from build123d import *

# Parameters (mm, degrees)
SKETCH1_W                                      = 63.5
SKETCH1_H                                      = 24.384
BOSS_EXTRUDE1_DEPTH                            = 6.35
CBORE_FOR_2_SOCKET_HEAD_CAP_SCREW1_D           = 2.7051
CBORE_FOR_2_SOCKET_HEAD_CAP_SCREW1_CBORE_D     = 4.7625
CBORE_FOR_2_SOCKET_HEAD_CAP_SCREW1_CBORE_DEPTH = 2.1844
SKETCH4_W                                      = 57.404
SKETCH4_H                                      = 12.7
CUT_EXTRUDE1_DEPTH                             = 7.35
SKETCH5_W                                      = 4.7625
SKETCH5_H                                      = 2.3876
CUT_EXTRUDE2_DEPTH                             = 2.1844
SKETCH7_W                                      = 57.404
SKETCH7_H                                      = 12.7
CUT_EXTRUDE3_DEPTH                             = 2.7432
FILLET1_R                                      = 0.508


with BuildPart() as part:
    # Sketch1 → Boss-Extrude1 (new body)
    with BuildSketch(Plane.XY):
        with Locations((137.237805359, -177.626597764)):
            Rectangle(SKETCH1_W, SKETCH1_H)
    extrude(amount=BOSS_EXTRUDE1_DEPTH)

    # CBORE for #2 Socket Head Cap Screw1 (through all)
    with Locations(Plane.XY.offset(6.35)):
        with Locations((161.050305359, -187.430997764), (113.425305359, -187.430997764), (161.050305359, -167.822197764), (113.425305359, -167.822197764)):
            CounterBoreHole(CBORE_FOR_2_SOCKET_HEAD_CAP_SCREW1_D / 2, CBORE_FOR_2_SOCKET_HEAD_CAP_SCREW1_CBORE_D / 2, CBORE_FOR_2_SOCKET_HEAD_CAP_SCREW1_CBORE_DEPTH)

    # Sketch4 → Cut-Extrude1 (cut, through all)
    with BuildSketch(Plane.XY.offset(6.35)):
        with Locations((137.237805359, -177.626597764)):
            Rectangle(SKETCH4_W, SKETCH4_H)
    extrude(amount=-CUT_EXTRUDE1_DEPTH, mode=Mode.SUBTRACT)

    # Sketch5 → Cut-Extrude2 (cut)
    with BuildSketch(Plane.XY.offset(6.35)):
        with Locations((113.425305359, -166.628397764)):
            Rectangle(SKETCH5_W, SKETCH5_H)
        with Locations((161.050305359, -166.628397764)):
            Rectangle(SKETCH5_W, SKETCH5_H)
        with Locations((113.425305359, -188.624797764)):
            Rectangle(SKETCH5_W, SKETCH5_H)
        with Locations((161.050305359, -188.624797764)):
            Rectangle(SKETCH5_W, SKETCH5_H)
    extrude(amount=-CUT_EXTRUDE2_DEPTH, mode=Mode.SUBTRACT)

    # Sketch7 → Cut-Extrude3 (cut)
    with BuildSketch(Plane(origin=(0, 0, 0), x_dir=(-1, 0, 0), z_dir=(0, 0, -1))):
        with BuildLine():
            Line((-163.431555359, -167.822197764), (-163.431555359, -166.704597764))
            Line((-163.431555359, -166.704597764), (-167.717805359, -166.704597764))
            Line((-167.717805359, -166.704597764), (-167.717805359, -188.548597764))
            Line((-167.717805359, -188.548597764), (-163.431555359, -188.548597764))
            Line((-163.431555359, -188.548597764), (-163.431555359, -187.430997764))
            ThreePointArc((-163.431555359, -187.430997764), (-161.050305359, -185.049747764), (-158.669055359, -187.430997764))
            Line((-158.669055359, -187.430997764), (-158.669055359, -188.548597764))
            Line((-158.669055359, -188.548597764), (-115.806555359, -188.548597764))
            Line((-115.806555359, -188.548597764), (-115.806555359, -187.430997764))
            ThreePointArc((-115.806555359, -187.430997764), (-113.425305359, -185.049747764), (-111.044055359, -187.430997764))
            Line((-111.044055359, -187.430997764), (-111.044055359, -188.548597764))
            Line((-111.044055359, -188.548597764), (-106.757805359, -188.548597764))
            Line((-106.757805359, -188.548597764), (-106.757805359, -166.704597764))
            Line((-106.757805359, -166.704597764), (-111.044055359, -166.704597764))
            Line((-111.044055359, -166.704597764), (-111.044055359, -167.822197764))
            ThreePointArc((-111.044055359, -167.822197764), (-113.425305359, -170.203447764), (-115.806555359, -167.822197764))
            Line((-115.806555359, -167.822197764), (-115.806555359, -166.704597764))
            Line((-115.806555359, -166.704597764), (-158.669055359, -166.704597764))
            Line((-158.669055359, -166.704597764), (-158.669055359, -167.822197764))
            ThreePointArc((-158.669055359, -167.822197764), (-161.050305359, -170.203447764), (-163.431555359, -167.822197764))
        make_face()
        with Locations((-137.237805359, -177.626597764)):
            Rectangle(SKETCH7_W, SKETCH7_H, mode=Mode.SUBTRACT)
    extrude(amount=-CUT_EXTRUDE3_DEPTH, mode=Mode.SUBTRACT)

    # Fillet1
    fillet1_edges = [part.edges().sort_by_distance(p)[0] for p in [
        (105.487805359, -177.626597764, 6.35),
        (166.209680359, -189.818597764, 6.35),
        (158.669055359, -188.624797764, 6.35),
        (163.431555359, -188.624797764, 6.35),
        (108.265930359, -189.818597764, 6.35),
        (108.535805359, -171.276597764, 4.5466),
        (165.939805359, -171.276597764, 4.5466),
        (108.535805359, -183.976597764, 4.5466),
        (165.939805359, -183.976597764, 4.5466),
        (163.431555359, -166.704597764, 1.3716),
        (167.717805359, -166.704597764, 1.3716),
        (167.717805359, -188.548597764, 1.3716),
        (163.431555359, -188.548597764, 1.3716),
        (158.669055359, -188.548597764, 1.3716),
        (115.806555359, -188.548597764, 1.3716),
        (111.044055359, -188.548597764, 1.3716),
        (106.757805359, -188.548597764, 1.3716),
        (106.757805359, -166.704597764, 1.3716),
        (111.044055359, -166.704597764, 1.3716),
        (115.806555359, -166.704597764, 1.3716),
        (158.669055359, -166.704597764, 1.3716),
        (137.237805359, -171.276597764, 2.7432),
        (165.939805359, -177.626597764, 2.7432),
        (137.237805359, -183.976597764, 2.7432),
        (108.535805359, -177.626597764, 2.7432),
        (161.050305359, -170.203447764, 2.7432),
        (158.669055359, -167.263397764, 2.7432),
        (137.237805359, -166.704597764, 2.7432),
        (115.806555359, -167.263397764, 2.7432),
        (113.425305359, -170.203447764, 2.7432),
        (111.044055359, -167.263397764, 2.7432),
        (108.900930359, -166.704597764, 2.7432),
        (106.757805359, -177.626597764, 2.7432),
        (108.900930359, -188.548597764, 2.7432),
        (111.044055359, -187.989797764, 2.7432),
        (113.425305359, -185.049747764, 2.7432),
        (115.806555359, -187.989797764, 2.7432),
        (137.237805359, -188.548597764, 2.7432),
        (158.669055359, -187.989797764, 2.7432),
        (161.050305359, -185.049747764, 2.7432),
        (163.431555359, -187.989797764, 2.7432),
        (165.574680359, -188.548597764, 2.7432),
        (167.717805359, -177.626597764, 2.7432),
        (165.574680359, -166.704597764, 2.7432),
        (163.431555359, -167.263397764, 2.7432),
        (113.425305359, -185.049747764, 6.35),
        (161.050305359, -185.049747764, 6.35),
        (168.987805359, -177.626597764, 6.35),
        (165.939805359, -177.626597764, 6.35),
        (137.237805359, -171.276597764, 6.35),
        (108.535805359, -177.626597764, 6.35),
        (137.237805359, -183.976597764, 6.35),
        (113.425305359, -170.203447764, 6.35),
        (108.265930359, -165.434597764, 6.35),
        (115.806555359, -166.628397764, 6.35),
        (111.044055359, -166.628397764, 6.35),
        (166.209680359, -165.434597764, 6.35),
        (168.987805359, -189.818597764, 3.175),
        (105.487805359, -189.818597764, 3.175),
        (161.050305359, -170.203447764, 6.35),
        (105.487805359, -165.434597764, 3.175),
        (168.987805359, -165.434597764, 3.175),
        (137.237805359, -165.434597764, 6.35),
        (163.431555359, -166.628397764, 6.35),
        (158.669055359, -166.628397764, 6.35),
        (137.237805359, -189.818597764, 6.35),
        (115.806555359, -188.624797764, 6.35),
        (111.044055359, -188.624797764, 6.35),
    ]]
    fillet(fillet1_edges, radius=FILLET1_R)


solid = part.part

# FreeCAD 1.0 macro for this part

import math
import FreeCAD as App
import Part
import Sketcher

V = App.Vector
Q = App.Units.Quantity


def edges_at(feature, points):
    """Names of the edges that pass closest to the given points."""
    edges = feature.Shape.Edges
    near = lambda p: min(range(len(edges)), key=lambda i: edges[i].distToShape(Part.Vertex(*p))[0])
    return sorted({f"Edge{near(p) + 1}" for p in points})


def add_polygon(sketch, points):
    """Adds a closed chain of lines whose ends are joined by coincident constraints."""
    first, n = sketch.GeometryCount, len(points)
    for a, b in zip(points, points[1:] + points[:1]):
        sketch.addGeometry(Part.LineSegment(App.Vector(*a, 0), App.Vector(*b, 0)), False)
    for i in range(n):
        sketch.addConstraint(Sketcher.Constraint("Coincident", first + i, 2, first + (i + 1) % n, 1))

doc = App.newDocument("Part")
body = doc.addObject("PartDesign::Body", "Body")

sketch1 = body.newObject("Sketcher::SketchObject", "Sketch")
sketch1.AttachmentSupport = (doc.getObject("XY_Plane"), [""])
sketch1.MapMode = "FlatFace"
add_polygon(sketch1, [(105, -165), (105, -190), (169, -190), (169, -165)])
sketch1.addConstraint([
    Sketcher.Constraint("Vertical", 0),
    Sketcher.Constraint("Horizontal", 1),
    Sketcher.Constraint("Vertical", 2),
    Sketcher.Constraint("Horizontal", 3),
    Sketcher.Constraint("DistanceX", 1, 1, 1, 2, Q("2.5 in")),
    Sketcher.Constraint("DistanceY", 0, 2, 0, 1, Q("0.96 in")),
    Sketcher.Constraint("DistanceX", -1, 1, 0, 2, Q("105.487805 mm")),
    Sketcher.Constraint("DistanceY", 0, 2, -1, 1, Q("189.818598 mm")),
])
pad1 = body.newObject("PartDesign::Pad", "Pad")
pad1.Profile = sketch1
pad1.Length = Q("0.25 in")

sketch2 = body.newObject("Sketcher::SketchObject", "Sketch001")
sketch2.AttachmentSupport = (doc.getObject("XY_Plane"), [""])
sketch2.MapMode = "FlatFace"
sketch2.AttachmentOffset = App.Placement(V(0, 0, 0.25 * 25.4), App.Rotation())
sketch2.addGeometry([
    Part.Circle(V(161.1, -187.4, 0), V(0, 0, 1), 1.4),
    Part.Circle(V(113.4, -187.4, 0), V(0, 0, 1), 1.4),
    Part.Circle(V(161.1, -167.8, 0), V(0, 0, 1), 1.4),
    Part.Circle(V(113.4, -167.8, 0), V(0, 0, 1), 1.4),
], False)
sketch2.addConstraint([
    Sketcher.Constraint("Equal", 0, 1),
    Sketcher.Constraint("Equal", 1, 2),
    Sketcher.Constraint("Equal", 2, 3),
    Sketcher.Constraint("Horizontal", 0, 3, 1, 3),
    Sketcher.Constraint("Horizontal", 2, 3, 3, 3),
    Sketcher.Constraint("Vertical", 0, 3, 2, 3),
    Sketcher.Constraint("Vertical", 1, 3, 3, 3),
    Sketcher.Constraint("Diameter", 0, Q("0.1065 in")),
    Sketcher.Constraint("DistanceX", 1, 3, 0, 3, Q("1.875 in")),
    Sketcher.Constraint("DistanceY", 0, 3, 2, 3, Q("0.772 in")),
    Sketcher.Constraint("DistanceX", -1, 1, 0, 3, Q("161.050305 mm")),
    Sketcher.Constraint("DistanceY", 0, 3, -1, 1, Q("187.430998 mm")),
])
doc.recompute()
hole = body.newObject("PartDesign::Hole", "Hole")
hole.Profile = sketch2
hole.ThreadType = "None"
hole.Diameter = Q("0.1065 in")
hole.DepthType = "ThroughAll"
hole.HoleCutType = "Counterbore"
hole.HoleCutDiameter = Q("0.1875 in")
hole.HoleCutDepth = Q("0.086 in")

sketch3 = body.newObject("Sketcher::SketchObject", "Sketch002")
sketch3.AttachmentSupport = (doc.getObject("XY_Plane"), [""])
sketch3.MapMode = "FlatFace"
sketch3.AttachmentOffset = App.Placement(V(0, 0, 0.25 * 25.4), App.Rotation())
add_polygon(sketch3, [(109, -171), (109, -184), (166, -184), (166, -171)])
sketch3.addConstraint([
    Sketcher.Constraint("Vertical", 0),
    Sketcher.Constraint("Horizontal", 1),
    Sketcher.Constraint("Vertical", 2),
    Sketcher.Constraint("Horizontal", 3),
    Sketcher.Constraint("DistanceY", 0, 2, 0, 1, Q("0.5 in")),
    Sketcher.Constraint("DistanceX", 1, 1, 1, 2, Q("2.26 in")),
    Sketcher.Constraint("DistanceX", -1, 1, 0, 2, Q("108.535805 mm")),
    Sketcher.Constraint("DistanceY", 0, 2, -1, 1, Q("183.976598 mm")),
])
pocket1 = body.newObject("PartDesign::Pocket", "Pocket")
pocket1.Profile = sketch3
pocket1.Type = "ThroughAll"

sketch4 = body.newObject("Sketcher::SketchObject", "Sketch003")
sketch4.AttachmentSupport = (doc.getObject("XY_Plane"), [""])
sketch4.MapMode = "FlatFace"
sketch4.AttachmentOffset = App.Placement(V(0, 0, 0.25 * 25.4), App.Rotation())
add_polygon(sketch4, [(111, -165.4), (111, -167.8), (115.8, -167.8), (115.8, -165.4)])
add_polygon(sketch4, [(158.7, -165.4), (158.7, -167.8), (163.4, -167.8), (163.4, -165.4)])
add_polygon(sketch4, [(111, -187.4), (111, -189.8), (115.8, -189.8), (115.8, -187.4)])
add_polygon(sketch4, [(158.7, -187.4), (158.7, -189.8), (163.4, -189.8), (163.4, -187.4)])
sketch4.addConstraint([
    Sketcher.Constraint("Vertical", 0),
    Sketcher.Constraint("Horizontal", 1),
    Sketcher.Constraint("Vertical", 2),
    Sketcher.Constraint("Horizontal", 3),
    Sketcher.Constraint("Vertical", 4),
    Sketcher.Constraint("Horizontal", 5),
    Sketcher.Constraint("Vertical", 6),
    Sketcher.Constraint("Horizontal", 7),
    Sketcher.Constraint("Vertical", 8),
    Sketcher.Constraint("Horizontal", 9),
    Sketcher.Constraint("Vertical", 10),
    Sketcher.Constraint("Horizontal", 11),
    Sketcher.Constraint("Vertical", 12),
    Sketcher.Constraint("Horizontal", 13),
    Sketcher.Constraint("Vertical", 14),
    Sketcher.Constraint("Horizontal", 15),
    Sketcher.Constraint("Horizontal", 1, 2, 4, 2),
    Sketcher.Constraint("Horizontal", 3, 2, 6, 2),
    Sketcher.Constraint("Horizontal", 9, 2, 12, 2),
    Sketcher.Constraint("Horizontal", 11, 2, 14, 2),
    Sketcher.Constraint("Vertical", 3, 2, 8, 2),
    Sketcher.Constraint("Vertical", 2, 2, 9, 2),
    Sketcher.Constraint("Vertical", 7, 2, 12, 2),
    Sketcher.Constraint("Vertical", 6, 2, 13, 2),
    Sketcher.Constraint("Equal", 3, 5),
    Sketcher.Constraint("Equal", 6, 8),
    Sketcher.Constraint("DistanceX", 1, 1, 1, 2, Q("0.1875 in")),
    Sketcher.Constraint("DistanceY", 0, 2, 0, 1, Q("0.094 in")),
    Sketcher.Constraint("DistanceY", 8, 2, 3, 2, Q("0.96 in")),
    Sketcher.Constraint("DistanceX", 1, 2, 4, 2, Q("1.6875 in")),
    Sketcher.Constraint("DistanceX", -1, 1, 0, 2, Q("111.044055 mm")),
    Sketcher.Constraint("DistanceY", 0, 2, -1, 1, Q("167.822198 mm")),
])
pocket2 = body.newObject("PartDesign::Pocket", "Pocket001")
pocket2.Profile = sketch4
pocket2.Length = Q("0.086 in")

sketch5 = body.newObject("Sketcher::SketchObject", "Sketch004")
sketch5.AttachmentSupport = (doc.getObject("XY_Plane"), [""])
sketch5.MapMode = "FlatFace"
sketch5.addGeometry(Part.LineSegment(V(163.4, -167.8, 0), V(163.4, -166.7, 0)), False)
sketch5.addGeometry(Part.LineSegment(V(163.4, -166.7, 0), V(167.7, -166.7, 0)), False)
sketch5.addGeometry(Part.LineSegment(V(167.7, -166.7, 0), V(167.7, -188.5, 0)), False)
sketch5.addGeometry(Part.LineSegment(V(167.7, -188.5, 0), V(163.4, -188.5, 0)), False)
sketch5.addGeometry(Part.LineSegment(V(163.4, -188.5, 0), V(163.4, -187.4, 0)), False)
sketch5.addGeometry(Part.ArcOfCircle(Part.Circle(V(161.1, -187.4, 0), V(0, 0, 1), 2.4), math.radians(0), math.radians(180)), False)
sketch5.addGeometry(Part.LineSegment(V(158.7, -187.4, 0), V(158.7, -188.5, 0)), False)
sketch5.addGeometry(Part.LineSegment(V(158.7, -188.5, 0), V(115.8, -188.5, 0)), False)
sketch5.addGeometry(Part.LineSegment(V(115.8, -188.5, 0), V(115.8, -187.4, 0)), False)
sketch5.addGeometry(Part.ArcOfCircle(Part.Circle(V(113.4, -187.4, 0), V(0, 0, 1), 2.4), math.radians(0), math.radians(180)), False)
sketch5.addGeometry(Part.LineSegment(V(111, -187.4, 0), V(111, -188.5, 0)), False)
sketch5.addGeometry(Part.LineSegment(V(111, -188.5, 0), V(106.8, -188.5, 0)), False)
sketch5.addGeometry(Part.LineSegment(V(106.8, -188.5, 0), V(106.8, -166.7, 0)), False)
sketch5.addGeometry(Part.LineSegment(V(106.8, -166.7, 0), V(111, -166.7, 0)), False)
sketch5.addGeometry(Part.LineSegment(V(111, -166.7, 0), V(111, -167.8, 0)), False)
sketch5.addGeometry(Part.ArcOfCircle(Part.Circle(V(113.4, -167.8, 0), V(0, 0, 1), 2.4), math.radians(180), math.radians(360)), False)
sketch5.addGeometry(Part.LineSegment(V(115.8, -167.8, 0), V(115.8, -166.7, 0)), False)
sketch5.addGeometry(Part.LineSegment(V(115.8, -166.7, 0), V(158.7, -166.7, 0)), False)
sketch5.addGeometry(Part.LineSegment(V(158.7, -166.7, 0), V(158.7, -167.8, 0)), False)
sketch5.addGeometry(Part.ArcOfCircle(Part.Circle(V(161.1, -167.8, 0), V(0, 0, 1), 2.4), math.radians(180), math.radians(360)), False)
add_polygon(sketch5, [(108.5, -184), (165.9, -184), (165.9, -171.3), (108.5, -171.3)])
sketch5.addConstraint([
    Sketcher.Constraint("Coincident", 0, 2, 1, 1),
    Sketcher.Constraint("Coincident", 1, 2, 2, 1),
    Sketcher.Constraint("Coincident", 2, 2, 3, 1),
    Sketcher.Constraint("Coincident", 3, 2, 4, 1),
    Sketcher.Constraint("Tangent", 4, 2, 5, 1),
    Sketcher.Constraint("Tangent", 5, 2, 6, 1),
    Sketcher.Constraint("Coincident", 6, 2, 7, 1),
    Sketcher.Constraint("Coincident", 7, 2, 8, 1),
    Sketcher.Constraint("Tangent", 8, 2, 9, 1),
    Sketcher.Constraint("Tangent", 9, 2, 10, 1),
    Sketcher.Constraint("Coincident", 10, 2, 11, 1),
    Sketcher.Constraint("Coincident", 11, 2, 12, 1),
    Sketcher.Constraint("Coincident", 12, 2, 13, 1),
    Sketcher.Constraint("Coincident", 13, 2, 14, 1),
    Sketcher.Constraint("Tangent", 14, 2, 15, 1),
    Sketcher.Constraint("Tangent", 15, 2, 16, 1),
    Sketcher.Constraint("Coincident", 16, 2, 17, 1),
    Sketcher.Constraint("Coincident", 17, 2, 18, 1),
    Sketcher.Constraint("Tangent", 18, 2, 19, 1),
    Sketcher.Constraint("Tangent", 19, 2, 0, 1),
    Sketcher.Constraint("Vertical", 0),
    Sketcher.Constraint("Horizontal", 1),
    Sketcher.Constraint("Vertical", 2),
    Sketcher.Constraint("Horizontal", 3),
    Sketcher.Constraint("Vertical", 4),
    Sketcher.Constraint("Vertical", 6),
    Sketcher.Constraint("Horizontal", 7),
    Sketcher.Constraint("Vertical", 8),
    Sketcher.Constraint("Vertical", 10),
    Sketcher.Constraint("Horizontal", 11),
    Sketcher.Constraint("Vertical", 12),
    Sketcher.Constraint("Horizontal", 13),
    Sketcher.Constraint("Vertical", 14),
    Sketcher.Constraint("Vertical", 16),
    Sketcher.Constraint("Horizontal", 17),
    Sketcher.Constraint("Vertical", 18),
    Sketcher.Constraint("Horizontal", 20),
    Sketcher.Constraint("Vertical", 21),
    Sketcher.Constraint("Horizontal", 22),
    Sketcher.Constraint("Vertical", 23),
    Sketcher.Constraint("Equal", 5, 9),
    Sketcher.Constraint("Equal", 9, 15),
    Sketcher.Constraint("Equal", 15, 19),
    Sketcher.Constraint("Horizontal", 5, 3, 9, 3),
    Sketcher.Constraint("Horizontal", 15, 3, 19, 3),
    Sketcher.Constraint("Horizontal", 3, 2, 6, 2),
    Sketcher.Constraint("Horizontal", 7, 2, 10, 2),
    Sketcher.Constraint("Horizontal", 1, 2, 12, 2),
    Sketcher.Constraint("Horizontal", 13, 2, 16, 2),
    Sketcher.Constraint("Vertical", 9, 3, 15, 3),
    Sketcher.Constraint("Vertical", 5, 3, 19, 3),
    Sketcher.Constraint("Equal", 3, 11),
    Sketcher.Constraint("Equal", 0, 4),
    Sketcher.Constraint("DistanceY", 21, 1, 21, 2, Q("0.5 in")),
    Sketcher.Constraint("Radius", 5, Q("0.09375 in")),
    Sketcher.Constraint("DistanceX", 20, 1, 20, 2, Q("2.26 in")),
    Sketcher.Constraint("DistanceY", 2, 2, 2, 1, Q("0.86 in")),
    Sketcher.Constraint("DistanceX", 7, 2, 7, 1, Q("1.6875 in")),
    Sketcher.Constraint("DistanceY", 0, 1, 0, 2, Q("0.044 in")),
    Sketcher.Constraint("DistanceX", 20, 2, 2, 2, Q("0.07 in")),
    Sketcher.Constraint("DistanceY", 2, 2, 20, 2, Q("0.18 in")),
    Sketcher.Constraint("DistanceX", 12, 2, 22, 2, Q("0.07 in")),
    Sketcher.Constraint("DistanceX", -1, 1, 5, 3, Q("161.050305 mm")),
    Sketcher.Constraint("DistanceY", 5, 3, -1, 1, Q("187.430998 mm")),
])
pocket3 = body.newObject("PartDesign::Pocket", "Pocket002")
pocket3.Profile = sketch5
pocket3.Length = Q("0.108 in")
pocket3.Reversed = True
doc.recompute()

fillet = body.newObject("PartDesign::Fillet", "Fillet")
fillet.Base = (pocket3, edges_at(pocket3, [
    (105.488, -177.627, 6.35),
    (166.21, -189.819, 6.35),
    (158.669, -188.625, 6.35),
    (163.432, -188.625, 6.35),
    (108.266, -189.819, 6.35),
    (108.536, -171.277, 4.547),
    (165.94, -171.277, 4.547),
    (108.536, -183.977, 4.547),
    (165.94, -183.977, 4.547),
    (163.432, -166.705, 1.372),
    (167.718, -166.705, 1.372),
    (167.718, -188.549, 1.372),
    (163.432, -188.549, 1.372),
    (158.669, -188.549, 1.372),
    (115.807, -188.549, 1.372),
    (111.044, -188.549, 1.372),
    (106.758, -188.549, 1.372),
    (106.758, -166.705, 1.372),
    (111.044, -166.705, 1.372),
    (115.807, -166.705, 1.372),
    (158.669, -166.705, 1.372),
    (137.238, -171.277, 2.743),
    (165.94, -177.627, 2.743),
    (137.238, -183.977, 2.743),
    (108.536, -177.627, 2.743),
    (161.05, -170.203, 2.743),
    (158.669, -167.263, 2.743),
    (137.238, -166.705, 2.743),
    (115.807, -167.263, 2.743),
    (113.425, -170.203, 2.743),
    (111.044, -167.263, 2.743),
    (108.901, -166.705, 2.743),
    (106.758, -177.627, 2.743),
    (108.901, -188.549, 2.743),
    (111.044, -187.99, 2.743),
    (113.425, -185.05, 2.743),
    (115.807, -187.99, 2.743),
    (137.238, -188.549, 2.743),
    (158.669, -187.99, 2.743),
    (161.05, -185.05, 2.743),
    (163.432, -187.99, 2.743),
    (165.575, -188.549, 2.743),
    (167.718, -177.627, 2.743),
    (165.575, -166.705, 2.743),
    (163.432, -167.263, 2.743),
    (113.425, -185.05, 6.35),
    (161.05, -185.05, 6.35),
    (168.988, -177.627, 6.35),
    (165.94, -177.627, 6.35),
    (137.238, -171.277, 6.35),
    (108.536, -177.627, 6.35),
    (137.238, -183.977, 6.35),
    (113.425, -170.203, 6.35),
    (108.266, -165.435, 6.35),
    (115.807, -166.628, 6.35),
    (111.044, -166.628, 6.35),
    (166.21, -165.435, 6.35),
    (168.988, -189.819, 3.175),
    (105.488, -189.819, 3.175),
    (161.05, -170.203, 6.35),
    (105.488, -165.435, 3.175),
    (168.988, -165.435, 3.175),
    (137.238, -165.435, 6.35),
    (163.432, -166.628, 6.35),
    (158.669, -166.628, 6.35),
    (137.238, -189.819, 6.35),
    (115.807, -188.625, 6.35),
    (111.044, -188.625, 6.35),
]))
fillet.Radius = Q("0.02 in")

doc.recompute()
